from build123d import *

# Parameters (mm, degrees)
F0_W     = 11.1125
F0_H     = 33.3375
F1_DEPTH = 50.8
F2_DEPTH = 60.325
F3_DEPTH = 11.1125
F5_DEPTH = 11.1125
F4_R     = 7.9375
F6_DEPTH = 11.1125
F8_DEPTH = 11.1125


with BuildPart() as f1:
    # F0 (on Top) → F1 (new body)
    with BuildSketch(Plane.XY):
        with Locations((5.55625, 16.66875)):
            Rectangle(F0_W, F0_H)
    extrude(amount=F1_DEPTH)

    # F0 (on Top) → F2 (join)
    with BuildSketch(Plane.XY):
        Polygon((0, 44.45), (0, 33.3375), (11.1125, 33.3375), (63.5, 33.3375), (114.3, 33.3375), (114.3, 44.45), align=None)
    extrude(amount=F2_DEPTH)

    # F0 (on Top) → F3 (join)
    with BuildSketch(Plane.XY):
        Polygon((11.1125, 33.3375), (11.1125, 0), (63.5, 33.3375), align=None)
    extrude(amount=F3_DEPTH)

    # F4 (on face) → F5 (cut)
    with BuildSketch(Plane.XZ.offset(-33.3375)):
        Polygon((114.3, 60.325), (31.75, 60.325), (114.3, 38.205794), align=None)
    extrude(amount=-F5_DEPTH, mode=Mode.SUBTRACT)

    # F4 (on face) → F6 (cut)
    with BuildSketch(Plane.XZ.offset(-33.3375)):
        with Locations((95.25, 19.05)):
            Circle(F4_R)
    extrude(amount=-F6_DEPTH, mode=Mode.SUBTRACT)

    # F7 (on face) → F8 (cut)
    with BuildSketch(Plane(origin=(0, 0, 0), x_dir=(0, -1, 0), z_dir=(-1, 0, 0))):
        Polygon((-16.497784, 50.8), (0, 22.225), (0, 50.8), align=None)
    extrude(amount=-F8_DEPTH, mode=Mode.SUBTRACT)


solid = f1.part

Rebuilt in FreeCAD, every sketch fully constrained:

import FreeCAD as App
import Part
import Sketcher
from FreeCAD import Vector
Q = App.Units.Quantity

doc = App.newDocument("Part")
body = doc.addObject("PartDesign::Body", "Body")

sketch1 = body.newObject("Sketcher::SketchObject", "Sketch")
sketch1.AttachmentSupport = (doc.getObject("XY_Plane"), [""])
sketch1.MapMode = "FlatFace"
sketch1.addGeometry(Part.LineSegment(Vector(0, 33, 0), Vector(0, 0, 0)), False)
sketch1.addGeometry(Part.LineSegment(Vector(0, 0, 0), Vector(11, 0, 0)), False)
sketch1.addGeometry(Part.LineSegment(Vector(11, 0, 0), Vector(11, 33, 0)), False)
sketch1.addGeometry(Part.LineSegment(Vector(11, 33, 0), Vector(0, 33, 0)), False)
sketch1.addConstraint(Sketcher.Constraint("Coincident", 0, 2, 1, 1))
sketch1.addConstraint(Sketcher.Constraint("Coincident", 1, 2, 2, 1))
sketch1.addConstraint(Sketcher.Constraint("Coincident", 2, 2, 3, 1))
sketch1.addConstraint(Sketcher.Constraint("Coincident", 3, 2, 0, 1))
sketch1.addConstraint(Sketcher.Constraint("Vertical", 0))
sketch1.addConstraint(Sketcher.Constraint("Horizontal", 1))
sketch1.addConstraint(Sketcher.Constraint("Vertical", 2))
sketch1.addConstraint(Sketcher.Constraint("Horizontal", 3))
sketch1.addConstraint(Sketcher.Constraint("Coincident", 0, 2, -1, 1))
sketch1.addConstraint(Sketcher.Constraint("DistanceX", 1, 1, 1, 2, Q("0.4375 in")))
sketch1.addConstraint(Sketcher.Constraint("DistanceY", 0, 2, 0, 1, Q("1.3125 in")))
pad1 = body.newObject("PartDesign::Pad", "Pad")
pad1.Profile = sketch1
pad1.Length = Q("2 in")

sketch2 = body.newObject("Sketcher::SketchObject", "Sketch001")
sketch2.AttachmentSupport = (doc.getObject("XY_Plane"), [""])
sketch2.MapMode = "FlatFace"
sketch2.addGeometry(Part.LineSegment(Vector(0, 44, 0), Vector(0, 33, 0)), False)
sketch2.addGeometry(Part.LineSegment(Vector(0, 33, 0), Vector(114, 33, 0)), False)
sketch2.addGeometry(Part.LineSegment(Vector(114, 33, 0), Vector(114, 44, 0)), False)
sketch2.addGeometry(Part.LineSegment(Vector(114, 44, 0), Vector(0, 44, 0)), False)
sketch2.addConstraint(Sketcher.Constraint("Coincident", 0, 2, 1, 1))
sketch2.addConstraint(Sketcher.Constraint("Coincident", 1, 2, 2, 1))
sketch2.addConstraint(Sketcher.Constraint("Coincident", 2, 2, 3, 1))
sketch2.addConstraint(Sketcher.Constraint("Coincident", 3, 2, 0, 1))
sketch2.addConstraint(Sketcher.Constraint("Vertical", 0))
sketch2.addConstraint(Sketcher.Constraint("Horizontal", 1))
sketch2.addConstraint(Sketcher.Constraint("Vertical", 2))
sketch2.addConstraint(Sketcher.Constraint("Horizontal", 3))
sketch2.addConstraint(Sketcher.Constraint("PointOnObject", 0, 2, -2))
sketch2.addConstraint(Sketcher.Constraint("DistanceX", 1, 1, 1, 2, Q("4.5 in")))
sketch2.addConstraint(Sketcher.Constraint("DistanceY", 0, 2, 0, 1, Q("0.4375 in")))
sketch2.addConstraint(Sketcher.Constraint("DistanceY", -1, 1, 2, 2, Q("1.75 in")))
pad2 = body.newObject("PartDesign::Pad", "Pad001")
pad2.Profile = sketch2
pad2.Length = Q("2.375 in")

sketch3 = body.newObject("Sketcher::SketchObject", "Sketch002")
sketch3.AttachmentSupport = (doc.getObject("XY_Plane"), [""])
sketch3.MapMode = "FlatFace"
sketch3.addGeometry(Part.LineSegment(Vector(11, 33, 0), Vector(11, 0, 0)), False)
sketch3.addGeometry(Part.LineSegment(Vector(11, 0, 0), Vector(64, 33, 0)), False)
sketch3.addGeometry(Part.LineSegment(Vector(64, 33, 0), Vector(11, 33, 0)), False)
sketch3.addConstraint(Sketcher.Constraint("Coincident", 0, 2, 1, 1))
sketch3.addConstraint(Sketcher.Constraint("Coincident", 1, 2, 2, 1))
sketch3.addConstraint(Sketcher.Constraint("Coincident", 2, 2, 0, 1))
sketch3.addConstraint(Sketcher.Constraint("Vertical", 0))
sketch3.addConstraint(Sketcher.Constraint("Horizontal", 2))
sketch3.addConstraint(Sketcher.Constraint("PointOnObject", 0, 2, -1))
sketch3.addConstraint(Sketcher.Constraint("DistanceX", -1, 1, 1, 2, Q("2.5 in")))
sketch3.addConstraint(Sketcher.Constraint("DistanceX", 2, 2, 2, 1, Q("2.0625 in")))
sketch3.addConstraint(Sketcher.Constraint("DistanceY", 0, 2, 0, 1, Q("1.3125 in")))
pad3 = body.newObject("PartDesign::Pad", "Pad002")
pad3.Profile = sketch3
pad3.Length = Q("0.4375 in")

sketch4 = body.newObject("Sketcher::SketchObject", "Sketch003")
sketch4.AttachmentSupport = (doc.getObject("XZ_Plane"), [""])
sketch4.MapMode = "FlatFace"
sketch4.AttachmentOffset = App.Placement(Vector(0, 0, -1.3125 * 25.4), App.Rotation())
sketch4.addGeometry(Part.LineSegment(Vector(114, 60, 0), Vector(32, 60, 0)), False)
sketch4.addGeometry(Part.LineSegment(Vector(32, 60, 0), Vector(114, 38, 0)), False)
sketch4.addGeometry(Part.LineSegment(Vector(114, 38, 0), Vector(114, 60, 0)), False)
sketch4.addConstraint(Sketcher.Constraint("Coincident", 0, 2, 1, 1))
sketch4.addConstraint(Sketcher.Constraint("Coincident", 1, 2, 2, 1))
sketch4.addConstraint(Sketcher.Constraint("Coincident", 2, 2, 0, 1))
sketch4.addConstraint(Sketcher.Constraint("Horizontal", 0))
sketch4.addConstraint(Sketcher.Constraint("Vertical", 2))
sketch4.addConstraint(Sketcher.Constraint("Angle", 1, Q("-15 deg")))
sketch4.addConstraint(Sketcher.Constraint("DistanceX", 0, 2, 0, 1, Q("3.25 in")))
sketch4.addConstraint(Sketcher.Constraint("DistanceX", -1, 1, 1, 2, Q("4.5 in")))
sketch4.addConstraint(Sketcher.Constraint("DistanceY", -1, 1, 0, 2, Q("2.375 in")))
pocket1 = body.newObject("PartDesign::Pocket", "Pocket")
pocket1.Profile = sketch4
pocket1.Length = Q("0.4375 in")

sketch5 = body.newObject("Sketcher::SketchObject", "Sketch004")
sketch5.AttachmentSupport = (doc.getObject("XZ_Plane"), [""])
sketch5.MapMode = "FlatFace"
sketch5.AttachmentOffset = App.Placement(Vector(0, 0, -1.3125 * 25.4), App.Rotation())
sketch5.addGeometry(Part.Circle(Vector(95, 19, 0), Vector(0, 0, 1), 8), False)
sketch5.addConstraint(Sketcher.Constraint("Diameter", 0, Q("0.625 in")))
sketch5.addConstraint(Sketcher.Constraint("DistanceX", -1, 1, 0, 3, Q("3.75 in")))
sketch5.addConstraint(Sketcher.Constraint("DistanceY", -1, 1, 0, 3, Q("0.75 in")))
pocket2 = body.newObject("PartDesign::Pocket", "Pocket001")
pocket2.Profile = sketch5
pocket2.Length = Q("0.4375 in")

sketch6 = body.newObject("Sketcher::SketchObject", "Sketch005")
sketch6.AttachmentSupport = (doc.getObject("YZ_Plane"), [""])
sketch6.MapMode = "FlatFace"
sketch6.addGeometry(Part.LineSegment(Vector(16, 51, 0), Vector(0, 22, 0)), False)
sketch6.addGeometry(Part.LineSegment(Vector(0, 22, 0), Vector(0, 51, 0)), False)
sketch6.addGeometry(Part.LineSegment(Vector(0, 51, 0), Vector(16, 51, 0)), False)
sketch6.addConstraint(Sketcher.Constraint("Coincident", 0, 2, 1, 1))
sketch6.addConstraint(Sketcher.Constraint("Coincident", 1, 2, 2, 1))
sketch6.addConstraint(Sketcher.Constraint("Coincident", 2, 2, 0, 1))
sketch6.addConstraint(Sketcher.Constraint("Vertical", 1))
sketch6.addConstraint(Sketcher.Constraint("Horizontal", 2))
sketch6.addConstraint(Sketcher.Constraint("PointOnObject", 0, 2, -2))
sketch6.addConstraint(Sketcher.Constraint("DistanceY", -1, 1, 1, 2, Q("2 in")))
sketch6.addConstraint(Sketcher.Constraint("Angle", 0, Q("-120 deg")))
sketch6.addConstraint(Sketcher.Constraint("DistanceY", 1, 1, 1, 2, Q("1.125 in")))
pocket3 = body.newObject("PartDesign::Pocket", "Pocket002")
pocket3.Profile = sketch6
pocket3.Length = Q("0.4375 in")
pocket3.Reversed = True

doc.recompute()
